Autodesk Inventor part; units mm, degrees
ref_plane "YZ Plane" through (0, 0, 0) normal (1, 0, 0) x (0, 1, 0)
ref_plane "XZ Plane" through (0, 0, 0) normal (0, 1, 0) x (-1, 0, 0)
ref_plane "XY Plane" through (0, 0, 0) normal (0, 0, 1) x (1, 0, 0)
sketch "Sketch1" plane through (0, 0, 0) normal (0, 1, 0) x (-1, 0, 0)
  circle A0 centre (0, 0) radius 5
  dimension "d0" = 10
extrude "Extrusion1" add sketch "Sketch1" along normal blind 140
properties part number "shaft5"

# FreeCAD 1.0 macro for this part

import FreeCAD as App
import Part
import Sketcher
from FreeCAD import Vector

doc = App.newDocument("Part")
params = doc.addObject("Spreadsheet::Sheet", "Params")
for row, (alias, value) in enumerate([
    ("sketch1_diameter", "10 mm"),
    ("pad1_length", "140 mm"),
], start=1):
    params.set(f"A{row}", alias)
    params.set(f"B{row}", "=" + value)
    params.setAlias(f"B{row}", alias)

body = doc.addObject("PartDesign::Body", "Body")

# Sketch on XZ plane
sketch1 = doc.addObject("Sketcher::SketchObject", "Sketch")
body.addObject(sketch1)
sketch1.AttachmentSupport = (doc.XZ_Plane, [""])
sketch1.MapMode = "FlatFace"
sketch1.addGeometry(Part.Circle(Vector(0, 0, 0), Vector(0, 0, 1), 5), False)
sketch1.addConstraint(Sketcher.Constraint("Coincident", 0, 3, -1, 1))
sketch1.addConstraint(Sketcher.Constraint("Diameter", 0, 10.0))
sketch1.setExpression("Constraints[1]", "Params.sketch1_diameter")
pad1 = doc.addObject("PartDesign::Pad", "Pad")
body.addObject(pad1)
pad1.Profile = sketch1
pad1.setExpression("Length", "Params.pad1_length")
pad1.Reversed = True

doc.recompute()
